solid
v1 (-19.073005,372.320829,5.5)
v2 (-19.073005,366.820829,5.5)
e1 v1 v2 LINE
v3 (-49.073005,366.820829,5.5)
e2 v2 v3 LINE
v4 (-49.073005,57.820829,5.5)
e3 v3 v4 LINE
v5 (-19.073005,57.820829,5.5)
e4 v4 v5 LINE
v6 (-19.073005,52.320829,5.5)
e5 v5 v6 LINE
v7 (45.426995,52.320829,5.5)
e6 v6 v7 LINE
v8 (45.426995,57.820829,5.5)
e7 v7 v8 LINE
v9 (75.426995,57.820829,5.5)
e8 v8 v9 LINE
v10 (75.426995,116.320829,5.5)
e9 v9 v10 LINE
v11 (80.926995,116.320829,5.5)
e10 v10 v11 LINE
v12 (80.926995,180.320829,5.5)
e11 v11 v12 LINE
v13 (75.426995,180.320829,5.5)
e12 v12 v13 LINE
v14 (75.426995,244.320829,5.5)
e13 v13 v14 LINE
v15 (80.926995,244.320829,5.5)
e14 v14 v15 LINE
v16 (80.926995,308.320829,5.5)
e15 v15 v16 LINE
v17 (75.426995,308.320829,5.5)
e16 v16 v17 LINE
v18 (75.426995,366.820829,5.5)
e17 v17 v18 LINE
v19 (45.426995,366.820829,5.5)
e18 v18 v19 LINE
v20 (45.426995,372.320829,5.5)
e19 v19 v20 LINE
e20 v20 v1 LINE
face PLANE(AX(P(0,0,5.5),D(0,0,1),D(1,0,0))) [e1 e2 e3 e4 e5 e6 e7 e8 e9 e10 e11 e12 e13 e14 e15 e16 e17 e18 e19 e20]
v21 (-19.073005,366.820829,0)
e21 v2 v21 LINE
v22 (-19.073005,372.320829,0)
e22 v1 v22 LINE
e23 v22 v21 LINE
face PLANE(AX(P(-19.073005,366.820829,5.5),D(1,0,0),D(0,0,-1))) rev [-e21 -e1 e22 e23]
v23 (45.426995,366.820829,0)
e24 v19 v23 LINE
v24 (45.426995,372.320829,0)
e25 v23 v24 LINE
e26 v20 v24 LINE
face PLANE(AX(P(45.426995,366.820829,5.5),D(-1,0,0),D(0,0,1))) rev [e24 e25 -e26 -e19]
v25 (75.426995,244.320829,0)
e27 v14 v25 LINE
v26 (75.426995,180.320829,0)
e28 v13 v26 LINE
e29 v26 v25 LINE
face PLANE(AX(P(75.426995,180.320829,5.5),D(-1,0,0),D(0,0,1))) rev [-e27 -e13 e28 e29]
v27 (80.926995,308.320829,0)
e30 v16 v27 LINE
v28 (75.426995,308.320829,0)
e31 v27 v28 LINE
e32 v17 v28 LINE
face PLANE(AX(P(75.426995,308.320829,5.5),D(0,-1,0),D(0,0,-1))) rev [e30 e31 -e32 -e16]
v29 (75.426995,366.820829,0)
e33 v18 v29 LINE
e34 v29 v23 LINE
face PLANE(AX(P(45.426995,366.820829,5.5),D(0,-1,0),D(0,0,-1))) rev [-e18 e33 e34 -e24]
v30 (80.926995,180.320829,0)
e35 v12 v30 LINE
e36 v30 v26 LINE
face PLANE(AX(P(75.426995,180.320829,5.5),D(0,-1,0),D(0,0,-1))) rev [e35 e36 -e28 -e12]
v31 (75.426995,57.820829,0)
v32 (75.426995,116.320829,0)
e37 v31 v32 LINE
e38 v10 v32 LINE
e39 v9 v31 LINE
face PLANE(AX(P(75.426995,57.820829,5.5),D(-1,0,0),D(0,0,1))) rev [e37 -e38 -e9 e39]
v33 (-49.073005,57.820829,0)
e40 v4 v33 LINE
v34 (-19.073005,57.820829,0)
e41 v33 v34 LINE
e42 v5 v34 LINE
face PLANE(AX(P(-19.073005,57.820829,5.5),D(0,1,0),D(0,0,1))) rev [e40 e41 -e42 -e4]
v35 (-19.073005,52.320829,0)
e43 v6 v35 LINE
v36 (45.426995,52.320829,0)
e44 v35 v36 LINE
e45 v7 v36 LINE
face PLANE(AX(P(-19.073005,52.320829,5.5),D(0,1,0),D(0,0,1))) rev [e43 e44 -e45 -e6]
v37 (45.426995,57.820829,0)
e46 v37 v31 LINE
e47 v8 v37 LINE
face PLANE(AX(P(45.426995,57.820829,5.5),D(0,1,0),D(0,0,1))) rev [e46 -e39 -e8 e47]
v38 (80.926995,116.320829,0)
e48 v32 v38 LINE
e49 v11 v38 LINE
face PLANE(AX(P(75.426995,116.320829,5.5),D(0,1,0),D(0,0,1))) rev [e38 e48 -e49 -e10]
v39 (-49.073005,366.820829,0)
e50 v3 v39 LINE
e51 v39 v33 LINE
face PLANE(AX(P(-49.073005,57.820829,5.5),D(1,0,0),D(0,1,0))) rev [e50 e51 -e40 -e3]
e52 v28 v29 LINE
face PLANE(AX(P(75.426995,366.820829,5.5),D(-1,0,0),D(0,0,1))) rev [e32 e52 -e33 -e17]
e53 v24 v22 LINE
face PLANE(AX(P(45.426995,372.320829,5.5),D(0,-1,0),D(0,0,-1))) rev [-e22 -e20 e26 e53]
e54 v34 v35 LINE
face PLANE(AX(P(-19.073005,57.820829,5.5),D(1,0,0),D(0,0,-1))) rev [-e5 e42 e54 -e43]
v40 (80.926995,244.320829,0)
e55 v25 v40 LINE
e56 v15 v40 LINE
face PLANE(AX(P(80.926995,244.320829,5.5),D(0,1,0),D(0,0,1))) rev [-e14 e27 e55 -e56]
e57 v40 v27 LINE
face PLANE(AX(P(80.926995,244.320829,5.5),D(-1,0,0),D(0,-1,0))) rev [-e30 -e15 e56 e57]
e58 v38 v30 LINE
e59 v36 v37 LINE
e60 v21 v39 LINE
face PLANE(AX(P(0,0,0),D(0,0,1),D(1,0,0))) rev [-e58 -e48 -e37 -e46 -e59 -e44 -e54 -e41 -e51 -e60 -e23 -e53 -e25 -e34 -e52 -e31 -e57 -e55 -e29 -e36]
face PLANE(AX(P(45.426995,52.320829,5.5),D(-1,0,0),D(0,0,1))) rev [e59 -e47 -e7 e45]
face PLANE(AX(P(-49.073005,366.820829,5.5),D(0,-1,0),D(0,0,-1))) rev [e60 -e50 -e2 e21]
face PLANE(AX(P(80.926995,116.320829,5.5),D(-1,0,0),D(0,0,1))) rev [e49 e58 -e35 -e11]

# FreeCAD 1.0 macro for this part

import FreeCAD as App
import Part
import Sketcher
from FreeCAD import Vector
Q = App.Units.Quantity


def add_polygon(sketch, points):
    """Adds a closed chain of lines whose ends are joined by coincident constraints."""
    first, n = sketch.GeometryCount, len(points)
    for a, b in zip(points, points[1:] + points[:1]):
        sketch.addGeometry(Part.LineSegment(App.Vector(*a, 0), App.Vector(*b, 0)), False)
    for i in range(n):
        sketch.addConstraint(Sketcher.Constraint("Coincident", first + i, 2, first + (i + 1) % n, 1))

doc = App.newDocument("Part")
body = doc.addObject("PartDesign::Body", "Body")

sketch1 = body.newObject("Sketcher::SketchObject", "Sketch")
sketch1.AttachmentSupport = (doc.getObject("XY_Plane"), [""])
sketch1.MapMode = "FlatFace"
add_polygon(sketch1, [(75, 367), (45, 367), (45, 372), (-19, 372), (-19, 367), (-49, 367), (-49, 58), (-19, 58), (-19, 52), (45, 52), (45, 58), (75, 58), (75, 116), (81, 116), (81, 180), (75, 180), (75, 244), (81, 244), (81, 308), (75, 308)])
sketch1.addConstraint([
    Sketcher.Constraint("Horizontal", 0),
    Sketcher.Constraint("Vertical", 1),
    Sketcher.Constraint("Horizontal", 2),
    Sketcher.Constraint("Vertical", 3),
    Sketcher.Constraint("Horizontal", 4),
    Sketcher.Constraint("Vertical", 5),
    Sketcher.Constraint("Horizontal", 6),
    Sketcher.Constraint("Vertical", 7),
    Sketcher.Constraint("Horizontal", 8),
    Sketcher.Constraint("Vertical", 9),
    Sketcher.Constraint("Horizontal", 10),
    Sketcher.Constraint("Vertical", 11),
    Sketcher.Constraint("Horizontal", 12),
    Sketcher.Constraint("Vertical", 13),
    Sketcher.Constraint("Horizontal", 14),
    Sketcher.Constraint("Vertical", 15),
    Sketcher.Constraint("Horizontal", 16),
    Sketcher.Constraint("Vertical", 17),
    Sketcher.Constraint("Horizontal", 18),
    Sketcher.Constraint("Vertical", 19),
    Sketcher.Constraint("Horizontal", 0, 2, 3, 2),
    Sketcher.Constraint("Horizontal", 6, 2, 9, 2),
    Sketcher.Constraint("Vertical", 3, 2, 6, 2),
    Sketcher.Constraint("Vertical", 1, 2, 8, 2),
    Sketcher.Constraint("Vertical", 11, 2, 14, 2),
    Sketcher.Constraint("Vertical", 13, 2, 16, 2),
    Sketcher.Constraint("Vertical", 15, 2, 18, 2),
    Sketcher.Constraint("Equal", 0, 4),
    Sketcher.Constraint("Equal", 18, 1),
    Sketcher.Constraint("Equal", 3, 7),
    Sketcher.Constraint("Equal", 13, 15),
    Sketcher.Constraint("Equal", 15, 17),
    Sketcher.Constraint("Equal", 11, 19),
    Sketcher.Constraint("DistanceX", 0, 2, 0, 1, Q("30 mm")),
    Sketcher.Constraint("DistanceY", 5, 2, 5, 1, Q("309 mm")),
    Sketcher.Constraint("DistanceY", 13, 1, 13, 2, Q("64 mm")),
    Sketcher.Constraint("DistanceX", 2, 2, 2, 1, Q("64.5 mm")),
    Sketcher.Constraint("DistanceX", 12, 1, 12, 2, Q("5.5 mm")),
    Sketcher.Constraint("DistanceY", -1, 1, 0, 2, Q("366.820829 mm")),
    Sketcher.Constraint("DistanceX", -1, 1, 0, 2, Q("45.426995 mm")),
])
pad1 = body.newObject("PartDesign::Pad", "Pad")
pad1.Profile = sketch1
pad1.Length = 5.5

doc.recompute()
